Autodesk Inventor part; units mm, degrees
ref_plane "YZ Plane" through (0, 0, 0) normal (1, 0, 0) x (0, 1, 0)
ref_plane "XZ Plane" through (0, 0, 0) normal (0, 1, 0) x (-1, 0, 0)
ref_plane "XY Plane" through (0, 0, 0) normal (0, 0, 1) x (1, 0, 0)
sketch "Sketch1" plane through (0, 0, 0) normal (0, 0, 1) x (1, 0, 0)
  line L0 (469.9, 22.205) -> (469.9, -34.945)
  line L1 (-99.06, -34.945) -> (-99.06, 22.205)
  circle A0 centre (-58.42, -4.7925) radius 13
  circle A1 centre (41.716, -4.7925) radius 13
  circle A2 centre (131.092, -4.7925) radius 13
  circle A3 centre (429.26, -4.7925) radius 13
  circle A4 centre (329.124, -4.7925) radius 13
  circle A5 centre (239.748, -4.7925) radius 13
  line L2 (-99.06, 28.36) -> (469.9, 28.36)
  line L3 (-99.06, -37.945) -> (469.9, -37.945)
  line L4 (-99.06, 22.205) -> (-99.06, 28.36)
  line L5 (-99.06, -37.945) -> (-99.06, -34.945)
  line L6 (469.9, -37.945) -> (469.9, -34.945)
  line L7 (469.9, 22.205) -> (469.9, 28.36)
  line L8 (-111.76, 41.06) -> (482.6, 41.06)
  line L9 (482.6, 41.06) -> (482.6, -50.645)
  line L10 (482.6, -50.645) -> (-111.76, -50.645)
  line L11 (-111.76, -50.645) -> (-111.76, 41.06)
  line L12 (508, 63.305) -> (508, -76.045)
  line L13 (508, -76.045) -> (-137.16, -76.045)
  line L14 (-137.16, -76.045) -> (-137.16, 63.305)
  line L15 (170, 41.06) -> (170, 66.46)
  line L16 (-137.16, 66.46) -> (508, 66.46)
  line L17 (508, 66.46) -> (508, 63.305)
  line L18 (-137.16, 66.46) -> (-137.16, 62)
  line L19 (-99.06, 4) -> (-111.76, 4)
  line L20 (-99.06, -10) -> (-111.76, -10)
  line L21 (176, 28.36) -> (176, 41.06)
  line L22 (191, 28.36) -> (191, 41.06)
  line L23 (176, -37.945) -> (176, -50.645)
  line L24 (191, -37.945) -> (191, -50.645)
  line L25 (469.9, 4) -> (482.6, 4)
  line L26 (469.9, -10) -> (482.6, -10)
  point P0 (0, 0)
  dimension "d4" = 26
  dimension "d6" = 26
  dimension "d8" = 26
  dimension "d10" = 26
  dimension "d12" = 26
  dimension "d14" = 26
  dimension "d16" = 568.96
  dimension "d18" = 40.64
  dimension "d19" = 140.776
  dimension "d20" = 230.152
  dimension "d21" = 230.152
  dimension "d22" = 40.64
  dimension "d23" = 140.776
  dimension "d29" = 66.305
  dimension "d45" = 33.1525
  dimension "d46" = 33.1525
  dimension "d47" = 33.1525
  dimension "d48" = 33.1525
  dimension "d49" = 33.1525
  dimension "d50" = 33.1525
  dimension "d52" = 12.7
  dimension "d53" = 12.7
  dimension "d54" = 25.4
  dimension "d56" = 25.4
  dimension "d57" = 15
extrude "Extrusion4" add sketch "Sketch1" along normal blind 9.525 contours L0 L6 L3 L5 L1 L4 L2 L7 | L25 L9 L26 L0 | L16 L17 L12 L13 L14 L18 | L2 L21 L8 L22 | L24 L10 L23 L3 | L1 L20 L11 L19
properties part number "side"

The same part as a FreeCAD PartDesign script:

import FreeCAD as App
import Part
import Sketcher

V = App.Vector


def add_polygon(sketch, points):
    """Adds a closed chain of lines whose ends are joined by coincident constraints."""
    first, n = sketch.GeometryCount, len(points)
    for a, b in zip(points, points[1:] + points[:1]):
        sketch.addGeometry(Part.LineSegment(App.Vector(*a, 0), App.Vector(*b, 0)), False)
    for i in range(n):
        sketch.addConstraint(Sketcher.Constraint("Coincident", first + i, 2, first + (i + 1) % n, 1))

doc = App.newDocument("Part")
body = doc.addObject("PartDesign::Body", "Body")

sketch1 = doc.addObject("Sketcher::SketchObject", "Sketch")
body.addObject(sketch1)
sketch1.AttachmentSupport = (doc.XY_Plane, [""])
sketch1.MapMode = "FlatFace"
add_polygon(sketch1, [(508, 66.46), (170, 66.46), (-137.16, 66.46), (-137.16, -76.045), (508, -76.045)])
add_polygon(sketch1, [(469.9, 4), (469.9, 28.36), (191, 28.36), (191, 41.06), (482.6, 41.06), (482.6, 4)])
add_polygon(sketch1, [(469.9, -10), (482.6, -10), (482.6, -50.645), (191, -50.645), (191, -37.945), (469.9, -37.945)])
add_polygon(sketch1, [(-99.06, -37.945), (176, -37.945), (176, -50.645), (-111.76, -50.645), (-111.76, -10), (-99.06, -10)])
add_polygon(sketch1, [(-99.06, 4), (-111.76, 4), (-111.76, 41.06), (170, 41.06), (176, 41.06), (176, 28.36), (-99.06, 28.36)])
sketch1.addGeometry(Part.Circle(V(-58.42, -4.7925, 0), V(0, 0, 1), 13), False)
sketch1.addGeometry(Part.Circle(V(41.716, -4.7925, 0), V(0, 0, 1), 13), False)
sketch1.addGeometry(Part.Circle(V(131.092, -4.7925, 0), V(0, 0, 1), 13), False)
sketch1.addGeometry(Part.Circle(V(239.748, -4.7925, 0), V(0, 0, 1), 13), False)
sketch1.addGeometry(Part.Circle(V(329.124, -4.7925, 0), V(0, 0, 1), 13), False)
sketch1.addGeometry(Part.Circle(V(429.26, -4.7925, 0), V(0, 0, 1), 13), False)
sketch1.addConstraint(Sketcher.Constraint("Horizontal", 0))
sketch1.addConstraint(Sketcher.Constraint("Horizontal", 1))
sketch1.addConstraint(Sketcher.Constraint("Vertical", 2))
sketch1.addConstraint(Sketcher.Constraint("Horizontal", 3))
sketch1.addConstraint(Sketcher.Constraint("Vertical", 4))
sketch1.addConstraint(Sketcher.Constraint("Vertical", 5))
sketch1.addConstraint(Sketcher.Constraint("Horizontal", 6))
sketch1.addConstraint(Sketcher.Constraint("Vertical", 7))
sketch1.addConstraint(Sketcher.Constraint("Horizontal", 8))
sketch1.addConstraint(Sketcher.Constraint("Vertical", 9))
sketch1.addConstraint(Sketcher.Constraint("Horizontal", 10))
sketch1.addConstraint(Sketcher.Constraint("Horizontal", 11))
sketch1.addConstraint(Sketcher.Constraint("Vertical", 12))
sketch1.addConstraint(Sketcher.Constraint("Horizontal", 13))
sketch1.addConstraint(Sketcher.Constraint("Vertical", 14))
sketch1.addConstraint(Sketcher.Constraint("Horizontal", 15))
sketch1.addConstraint(Sketcher.Constraint("Vertical", 16))
sketch1.addConstraint(Sketcher.Constraint("Horizontal", 17))
sketch1.addConstraint(Sketcher.Constraint("Vertical", 18))
sketch1.addConstraint(Sketcher.Constraint("Horizontal", 19))
sketch1.addConstraint(Sketcher.Constraint("Vertical", 20))
sketch1.addConstraint(Sketcher.Constraint("Horizontal", 21))
sketch1.addConstraint(Sketcher.Constraint("Vertical", 22))
sketch1.addConstraint(Sketcher.Constraint("Horizontal", 23))
sketch1.addConstraint(Sketcher.Constraint("Vertical", 24))
sketch1.addConstraint(Sketcher.Constraint("Horizontal", 25))
sketch1.addConstraint(Sketcher.Constraint("Horizontal", 26))
sketch1.addConstraint(Sketcher.Constraint("Vertical", 27))
sketch1.addConstraint(Sketcher.Constraint("Horizontal", 28))
sketch1.addConstraint(Sketcher.Constraint("Vertical", 29))
sketch1.addConstraint(Sketcher.Constraint("Equal", 30, 31))
sketch1.addConstraint(Sketcher.Constraint("Equal", 31, 32))
sketch1.addConstraint(Sketcher.Constraint("Equal", 32, 33))
sketch1.addConstraint(Sketcher.Constraint("Equal", 33, 34))
sketch1.addConstraint(Sketcher.Constraint("Equal", 34, 35))
sketch1.addConstraint(Sketcher.Constraint("Horizontal", 30, 3, 31, 3))
sketch1.addConstraint(Sketcher.Constraint("Horizontal", 31, 3, 32, 3))
sketch1.addConstraint(Sketcher.Constraint("Horizontal", 32, 3, 33, 3))
sketch1.addConstraint(Sketcher.Constraint("Horizontal", 33, 3, 34, 3))
sketch1.addConstraint(Sketcher.Constraint("Horizontal", 34, 3, 35, 3))
sketch1.addConstraint(Sketcher.Constraint("Horizontal", 15, 2, 17, 2))
sketch1.addConstraint(Sketcher.Constraint("Horizontal", 13, 2, 18, 2))
sketch1.addConstraint(Sketcher.Constraint("Horizontal", 16, 2, 20, 2))
sketch1.addConstraint(Sketcher.Constraint("Horizontal", 10, 2, 23, 2))
sketch1.addConstraint(Sketcher.Constraint("Horizontal", 8, 2, 24, 2))
sketch1.addConstraint(Sketcher.Constraint("Horizontal", 6, 2, 27, 2))
sketch1.addConstraint(Sketcher.Constraint("Vertical", 9, 2, 11, 2))
sketch1.addConstraint(Sketcher.Constraint("Vertical", 7, 2, 13, 2))
sketch1.addConstraint(Sketcher.Constraint("Vertical", 10, 2, 15, 2))
sketch1.addConstraint(Sketcher.Constraint("Vertical", 20, 2, 23, 2))
sketch1.addConstraint(Sketcher.Constraint("Vertical", 0, 2, 25, 2))
sketch1.addConstraint(Sketcher.Constraint("Vertical", 18, 2, 26, 2))
sketch1.addConstraint(Sketcher.Constraint("Vertical", 22, 2, 28, 2))
sketch1.addConstraint(Sketcher.Constraint("Equal", 11, 21))
sketch1.addConstraint(Sketcher.Constraint("Equal", 23, 7))
sketch1.addConstraint(Sketcher.Constraint("Equal", 7, 14))
sketch1.addConstraint(Sketcher.Constraint("Diameter", 30, 26.0))
sketch1.addConstraint(Sketcher.Constraint("DistanceX", 10, 2, 10, 1, 12.7))
sketch1.addConstraint(Sketcher.Constraint("DistanceX", 17, 2, 14, 2, 15.0))
sketch1.addConstraint(Sketcher.Constraint("DistanceY", 7, 2, 0, 2, 25.4))
sketch1.addConstraint(Sketcher.Constraint("DistanceX", 8, 2, 4, 2, 25.4))
sketch1.addConstraint(Sketcher.Constraint("DistanceY", 3, 2, 12, 2, 25.4))
sketch1.addConstraint(Sketcher.Constraint("DistanceX", 2, 2, 19, 2, 25.4))
sketch1.addConstraint(Sketcher.Constraint("DistanceX", 0, 2, 0, 1, 338.0))
sketch1.addConstraint(Sketcher.Constraint("DistanceX", 26, 1, 26, 2, 6.0))
sketch1.addConstraint(Sketcher.Constraint("DistanceX", 35, 3, 5, 2, 40.64))
sketch1.addConstraint(Sketcher.Constraint("DistanceX", 21, 2, 30, 3, 40.64))
sketch1.addConstraint(Sketcher.Constraint("DistanceX", -1, 1, 0, 2, 170.0))
sketch1.addConstraint(Sketcher.Constraint("DistanceY", -1, 1, 9, 2, 4.0))
sketch1.addConstraint(Sketcher.Constraint("DistanceY", 11, 2, -1, 1, 10.0))
sketch1.addConstraint(Sketcher.Constraint("DistanceX", 34, 3, 5, 2, 140.776))
sketch1.addConstraint(Sketcher.Constraint("DistanceX", 33, 3, 5, 2, 230.152))
sketch1.addConstraint(Sketcher.Constraint("DistanceY", 14, 2, 6, 2, 66.305))
sketch1.addConstraint(Sketcher.Constraint("DistanceX", 1, 2, 1, 1, 307.16))
sketch1.addConstraint(Sketcher.Constraint("DistanceY", 5, 1, 5, 2, 24.36))
sketch1.addConstraint(Sketcher.Constraint("DistanceY", 35, 3, 5, 2, 33.1525))
sketch1.addConstraint(Sketcher.Constraint("DistanceX", -1, 1, 31, 3, 41.716))
sketch1.addConstraint(Sketcher.Constraint("DistanceX", -1, 1, 32, 3, 131.092))
pad1 = doc.addObject("PartDesign::Pad", "Pad")
body.addObject(pad1)
pad1.Profile = sketch1
pad1.Length = 9.525

doc.recompute()
